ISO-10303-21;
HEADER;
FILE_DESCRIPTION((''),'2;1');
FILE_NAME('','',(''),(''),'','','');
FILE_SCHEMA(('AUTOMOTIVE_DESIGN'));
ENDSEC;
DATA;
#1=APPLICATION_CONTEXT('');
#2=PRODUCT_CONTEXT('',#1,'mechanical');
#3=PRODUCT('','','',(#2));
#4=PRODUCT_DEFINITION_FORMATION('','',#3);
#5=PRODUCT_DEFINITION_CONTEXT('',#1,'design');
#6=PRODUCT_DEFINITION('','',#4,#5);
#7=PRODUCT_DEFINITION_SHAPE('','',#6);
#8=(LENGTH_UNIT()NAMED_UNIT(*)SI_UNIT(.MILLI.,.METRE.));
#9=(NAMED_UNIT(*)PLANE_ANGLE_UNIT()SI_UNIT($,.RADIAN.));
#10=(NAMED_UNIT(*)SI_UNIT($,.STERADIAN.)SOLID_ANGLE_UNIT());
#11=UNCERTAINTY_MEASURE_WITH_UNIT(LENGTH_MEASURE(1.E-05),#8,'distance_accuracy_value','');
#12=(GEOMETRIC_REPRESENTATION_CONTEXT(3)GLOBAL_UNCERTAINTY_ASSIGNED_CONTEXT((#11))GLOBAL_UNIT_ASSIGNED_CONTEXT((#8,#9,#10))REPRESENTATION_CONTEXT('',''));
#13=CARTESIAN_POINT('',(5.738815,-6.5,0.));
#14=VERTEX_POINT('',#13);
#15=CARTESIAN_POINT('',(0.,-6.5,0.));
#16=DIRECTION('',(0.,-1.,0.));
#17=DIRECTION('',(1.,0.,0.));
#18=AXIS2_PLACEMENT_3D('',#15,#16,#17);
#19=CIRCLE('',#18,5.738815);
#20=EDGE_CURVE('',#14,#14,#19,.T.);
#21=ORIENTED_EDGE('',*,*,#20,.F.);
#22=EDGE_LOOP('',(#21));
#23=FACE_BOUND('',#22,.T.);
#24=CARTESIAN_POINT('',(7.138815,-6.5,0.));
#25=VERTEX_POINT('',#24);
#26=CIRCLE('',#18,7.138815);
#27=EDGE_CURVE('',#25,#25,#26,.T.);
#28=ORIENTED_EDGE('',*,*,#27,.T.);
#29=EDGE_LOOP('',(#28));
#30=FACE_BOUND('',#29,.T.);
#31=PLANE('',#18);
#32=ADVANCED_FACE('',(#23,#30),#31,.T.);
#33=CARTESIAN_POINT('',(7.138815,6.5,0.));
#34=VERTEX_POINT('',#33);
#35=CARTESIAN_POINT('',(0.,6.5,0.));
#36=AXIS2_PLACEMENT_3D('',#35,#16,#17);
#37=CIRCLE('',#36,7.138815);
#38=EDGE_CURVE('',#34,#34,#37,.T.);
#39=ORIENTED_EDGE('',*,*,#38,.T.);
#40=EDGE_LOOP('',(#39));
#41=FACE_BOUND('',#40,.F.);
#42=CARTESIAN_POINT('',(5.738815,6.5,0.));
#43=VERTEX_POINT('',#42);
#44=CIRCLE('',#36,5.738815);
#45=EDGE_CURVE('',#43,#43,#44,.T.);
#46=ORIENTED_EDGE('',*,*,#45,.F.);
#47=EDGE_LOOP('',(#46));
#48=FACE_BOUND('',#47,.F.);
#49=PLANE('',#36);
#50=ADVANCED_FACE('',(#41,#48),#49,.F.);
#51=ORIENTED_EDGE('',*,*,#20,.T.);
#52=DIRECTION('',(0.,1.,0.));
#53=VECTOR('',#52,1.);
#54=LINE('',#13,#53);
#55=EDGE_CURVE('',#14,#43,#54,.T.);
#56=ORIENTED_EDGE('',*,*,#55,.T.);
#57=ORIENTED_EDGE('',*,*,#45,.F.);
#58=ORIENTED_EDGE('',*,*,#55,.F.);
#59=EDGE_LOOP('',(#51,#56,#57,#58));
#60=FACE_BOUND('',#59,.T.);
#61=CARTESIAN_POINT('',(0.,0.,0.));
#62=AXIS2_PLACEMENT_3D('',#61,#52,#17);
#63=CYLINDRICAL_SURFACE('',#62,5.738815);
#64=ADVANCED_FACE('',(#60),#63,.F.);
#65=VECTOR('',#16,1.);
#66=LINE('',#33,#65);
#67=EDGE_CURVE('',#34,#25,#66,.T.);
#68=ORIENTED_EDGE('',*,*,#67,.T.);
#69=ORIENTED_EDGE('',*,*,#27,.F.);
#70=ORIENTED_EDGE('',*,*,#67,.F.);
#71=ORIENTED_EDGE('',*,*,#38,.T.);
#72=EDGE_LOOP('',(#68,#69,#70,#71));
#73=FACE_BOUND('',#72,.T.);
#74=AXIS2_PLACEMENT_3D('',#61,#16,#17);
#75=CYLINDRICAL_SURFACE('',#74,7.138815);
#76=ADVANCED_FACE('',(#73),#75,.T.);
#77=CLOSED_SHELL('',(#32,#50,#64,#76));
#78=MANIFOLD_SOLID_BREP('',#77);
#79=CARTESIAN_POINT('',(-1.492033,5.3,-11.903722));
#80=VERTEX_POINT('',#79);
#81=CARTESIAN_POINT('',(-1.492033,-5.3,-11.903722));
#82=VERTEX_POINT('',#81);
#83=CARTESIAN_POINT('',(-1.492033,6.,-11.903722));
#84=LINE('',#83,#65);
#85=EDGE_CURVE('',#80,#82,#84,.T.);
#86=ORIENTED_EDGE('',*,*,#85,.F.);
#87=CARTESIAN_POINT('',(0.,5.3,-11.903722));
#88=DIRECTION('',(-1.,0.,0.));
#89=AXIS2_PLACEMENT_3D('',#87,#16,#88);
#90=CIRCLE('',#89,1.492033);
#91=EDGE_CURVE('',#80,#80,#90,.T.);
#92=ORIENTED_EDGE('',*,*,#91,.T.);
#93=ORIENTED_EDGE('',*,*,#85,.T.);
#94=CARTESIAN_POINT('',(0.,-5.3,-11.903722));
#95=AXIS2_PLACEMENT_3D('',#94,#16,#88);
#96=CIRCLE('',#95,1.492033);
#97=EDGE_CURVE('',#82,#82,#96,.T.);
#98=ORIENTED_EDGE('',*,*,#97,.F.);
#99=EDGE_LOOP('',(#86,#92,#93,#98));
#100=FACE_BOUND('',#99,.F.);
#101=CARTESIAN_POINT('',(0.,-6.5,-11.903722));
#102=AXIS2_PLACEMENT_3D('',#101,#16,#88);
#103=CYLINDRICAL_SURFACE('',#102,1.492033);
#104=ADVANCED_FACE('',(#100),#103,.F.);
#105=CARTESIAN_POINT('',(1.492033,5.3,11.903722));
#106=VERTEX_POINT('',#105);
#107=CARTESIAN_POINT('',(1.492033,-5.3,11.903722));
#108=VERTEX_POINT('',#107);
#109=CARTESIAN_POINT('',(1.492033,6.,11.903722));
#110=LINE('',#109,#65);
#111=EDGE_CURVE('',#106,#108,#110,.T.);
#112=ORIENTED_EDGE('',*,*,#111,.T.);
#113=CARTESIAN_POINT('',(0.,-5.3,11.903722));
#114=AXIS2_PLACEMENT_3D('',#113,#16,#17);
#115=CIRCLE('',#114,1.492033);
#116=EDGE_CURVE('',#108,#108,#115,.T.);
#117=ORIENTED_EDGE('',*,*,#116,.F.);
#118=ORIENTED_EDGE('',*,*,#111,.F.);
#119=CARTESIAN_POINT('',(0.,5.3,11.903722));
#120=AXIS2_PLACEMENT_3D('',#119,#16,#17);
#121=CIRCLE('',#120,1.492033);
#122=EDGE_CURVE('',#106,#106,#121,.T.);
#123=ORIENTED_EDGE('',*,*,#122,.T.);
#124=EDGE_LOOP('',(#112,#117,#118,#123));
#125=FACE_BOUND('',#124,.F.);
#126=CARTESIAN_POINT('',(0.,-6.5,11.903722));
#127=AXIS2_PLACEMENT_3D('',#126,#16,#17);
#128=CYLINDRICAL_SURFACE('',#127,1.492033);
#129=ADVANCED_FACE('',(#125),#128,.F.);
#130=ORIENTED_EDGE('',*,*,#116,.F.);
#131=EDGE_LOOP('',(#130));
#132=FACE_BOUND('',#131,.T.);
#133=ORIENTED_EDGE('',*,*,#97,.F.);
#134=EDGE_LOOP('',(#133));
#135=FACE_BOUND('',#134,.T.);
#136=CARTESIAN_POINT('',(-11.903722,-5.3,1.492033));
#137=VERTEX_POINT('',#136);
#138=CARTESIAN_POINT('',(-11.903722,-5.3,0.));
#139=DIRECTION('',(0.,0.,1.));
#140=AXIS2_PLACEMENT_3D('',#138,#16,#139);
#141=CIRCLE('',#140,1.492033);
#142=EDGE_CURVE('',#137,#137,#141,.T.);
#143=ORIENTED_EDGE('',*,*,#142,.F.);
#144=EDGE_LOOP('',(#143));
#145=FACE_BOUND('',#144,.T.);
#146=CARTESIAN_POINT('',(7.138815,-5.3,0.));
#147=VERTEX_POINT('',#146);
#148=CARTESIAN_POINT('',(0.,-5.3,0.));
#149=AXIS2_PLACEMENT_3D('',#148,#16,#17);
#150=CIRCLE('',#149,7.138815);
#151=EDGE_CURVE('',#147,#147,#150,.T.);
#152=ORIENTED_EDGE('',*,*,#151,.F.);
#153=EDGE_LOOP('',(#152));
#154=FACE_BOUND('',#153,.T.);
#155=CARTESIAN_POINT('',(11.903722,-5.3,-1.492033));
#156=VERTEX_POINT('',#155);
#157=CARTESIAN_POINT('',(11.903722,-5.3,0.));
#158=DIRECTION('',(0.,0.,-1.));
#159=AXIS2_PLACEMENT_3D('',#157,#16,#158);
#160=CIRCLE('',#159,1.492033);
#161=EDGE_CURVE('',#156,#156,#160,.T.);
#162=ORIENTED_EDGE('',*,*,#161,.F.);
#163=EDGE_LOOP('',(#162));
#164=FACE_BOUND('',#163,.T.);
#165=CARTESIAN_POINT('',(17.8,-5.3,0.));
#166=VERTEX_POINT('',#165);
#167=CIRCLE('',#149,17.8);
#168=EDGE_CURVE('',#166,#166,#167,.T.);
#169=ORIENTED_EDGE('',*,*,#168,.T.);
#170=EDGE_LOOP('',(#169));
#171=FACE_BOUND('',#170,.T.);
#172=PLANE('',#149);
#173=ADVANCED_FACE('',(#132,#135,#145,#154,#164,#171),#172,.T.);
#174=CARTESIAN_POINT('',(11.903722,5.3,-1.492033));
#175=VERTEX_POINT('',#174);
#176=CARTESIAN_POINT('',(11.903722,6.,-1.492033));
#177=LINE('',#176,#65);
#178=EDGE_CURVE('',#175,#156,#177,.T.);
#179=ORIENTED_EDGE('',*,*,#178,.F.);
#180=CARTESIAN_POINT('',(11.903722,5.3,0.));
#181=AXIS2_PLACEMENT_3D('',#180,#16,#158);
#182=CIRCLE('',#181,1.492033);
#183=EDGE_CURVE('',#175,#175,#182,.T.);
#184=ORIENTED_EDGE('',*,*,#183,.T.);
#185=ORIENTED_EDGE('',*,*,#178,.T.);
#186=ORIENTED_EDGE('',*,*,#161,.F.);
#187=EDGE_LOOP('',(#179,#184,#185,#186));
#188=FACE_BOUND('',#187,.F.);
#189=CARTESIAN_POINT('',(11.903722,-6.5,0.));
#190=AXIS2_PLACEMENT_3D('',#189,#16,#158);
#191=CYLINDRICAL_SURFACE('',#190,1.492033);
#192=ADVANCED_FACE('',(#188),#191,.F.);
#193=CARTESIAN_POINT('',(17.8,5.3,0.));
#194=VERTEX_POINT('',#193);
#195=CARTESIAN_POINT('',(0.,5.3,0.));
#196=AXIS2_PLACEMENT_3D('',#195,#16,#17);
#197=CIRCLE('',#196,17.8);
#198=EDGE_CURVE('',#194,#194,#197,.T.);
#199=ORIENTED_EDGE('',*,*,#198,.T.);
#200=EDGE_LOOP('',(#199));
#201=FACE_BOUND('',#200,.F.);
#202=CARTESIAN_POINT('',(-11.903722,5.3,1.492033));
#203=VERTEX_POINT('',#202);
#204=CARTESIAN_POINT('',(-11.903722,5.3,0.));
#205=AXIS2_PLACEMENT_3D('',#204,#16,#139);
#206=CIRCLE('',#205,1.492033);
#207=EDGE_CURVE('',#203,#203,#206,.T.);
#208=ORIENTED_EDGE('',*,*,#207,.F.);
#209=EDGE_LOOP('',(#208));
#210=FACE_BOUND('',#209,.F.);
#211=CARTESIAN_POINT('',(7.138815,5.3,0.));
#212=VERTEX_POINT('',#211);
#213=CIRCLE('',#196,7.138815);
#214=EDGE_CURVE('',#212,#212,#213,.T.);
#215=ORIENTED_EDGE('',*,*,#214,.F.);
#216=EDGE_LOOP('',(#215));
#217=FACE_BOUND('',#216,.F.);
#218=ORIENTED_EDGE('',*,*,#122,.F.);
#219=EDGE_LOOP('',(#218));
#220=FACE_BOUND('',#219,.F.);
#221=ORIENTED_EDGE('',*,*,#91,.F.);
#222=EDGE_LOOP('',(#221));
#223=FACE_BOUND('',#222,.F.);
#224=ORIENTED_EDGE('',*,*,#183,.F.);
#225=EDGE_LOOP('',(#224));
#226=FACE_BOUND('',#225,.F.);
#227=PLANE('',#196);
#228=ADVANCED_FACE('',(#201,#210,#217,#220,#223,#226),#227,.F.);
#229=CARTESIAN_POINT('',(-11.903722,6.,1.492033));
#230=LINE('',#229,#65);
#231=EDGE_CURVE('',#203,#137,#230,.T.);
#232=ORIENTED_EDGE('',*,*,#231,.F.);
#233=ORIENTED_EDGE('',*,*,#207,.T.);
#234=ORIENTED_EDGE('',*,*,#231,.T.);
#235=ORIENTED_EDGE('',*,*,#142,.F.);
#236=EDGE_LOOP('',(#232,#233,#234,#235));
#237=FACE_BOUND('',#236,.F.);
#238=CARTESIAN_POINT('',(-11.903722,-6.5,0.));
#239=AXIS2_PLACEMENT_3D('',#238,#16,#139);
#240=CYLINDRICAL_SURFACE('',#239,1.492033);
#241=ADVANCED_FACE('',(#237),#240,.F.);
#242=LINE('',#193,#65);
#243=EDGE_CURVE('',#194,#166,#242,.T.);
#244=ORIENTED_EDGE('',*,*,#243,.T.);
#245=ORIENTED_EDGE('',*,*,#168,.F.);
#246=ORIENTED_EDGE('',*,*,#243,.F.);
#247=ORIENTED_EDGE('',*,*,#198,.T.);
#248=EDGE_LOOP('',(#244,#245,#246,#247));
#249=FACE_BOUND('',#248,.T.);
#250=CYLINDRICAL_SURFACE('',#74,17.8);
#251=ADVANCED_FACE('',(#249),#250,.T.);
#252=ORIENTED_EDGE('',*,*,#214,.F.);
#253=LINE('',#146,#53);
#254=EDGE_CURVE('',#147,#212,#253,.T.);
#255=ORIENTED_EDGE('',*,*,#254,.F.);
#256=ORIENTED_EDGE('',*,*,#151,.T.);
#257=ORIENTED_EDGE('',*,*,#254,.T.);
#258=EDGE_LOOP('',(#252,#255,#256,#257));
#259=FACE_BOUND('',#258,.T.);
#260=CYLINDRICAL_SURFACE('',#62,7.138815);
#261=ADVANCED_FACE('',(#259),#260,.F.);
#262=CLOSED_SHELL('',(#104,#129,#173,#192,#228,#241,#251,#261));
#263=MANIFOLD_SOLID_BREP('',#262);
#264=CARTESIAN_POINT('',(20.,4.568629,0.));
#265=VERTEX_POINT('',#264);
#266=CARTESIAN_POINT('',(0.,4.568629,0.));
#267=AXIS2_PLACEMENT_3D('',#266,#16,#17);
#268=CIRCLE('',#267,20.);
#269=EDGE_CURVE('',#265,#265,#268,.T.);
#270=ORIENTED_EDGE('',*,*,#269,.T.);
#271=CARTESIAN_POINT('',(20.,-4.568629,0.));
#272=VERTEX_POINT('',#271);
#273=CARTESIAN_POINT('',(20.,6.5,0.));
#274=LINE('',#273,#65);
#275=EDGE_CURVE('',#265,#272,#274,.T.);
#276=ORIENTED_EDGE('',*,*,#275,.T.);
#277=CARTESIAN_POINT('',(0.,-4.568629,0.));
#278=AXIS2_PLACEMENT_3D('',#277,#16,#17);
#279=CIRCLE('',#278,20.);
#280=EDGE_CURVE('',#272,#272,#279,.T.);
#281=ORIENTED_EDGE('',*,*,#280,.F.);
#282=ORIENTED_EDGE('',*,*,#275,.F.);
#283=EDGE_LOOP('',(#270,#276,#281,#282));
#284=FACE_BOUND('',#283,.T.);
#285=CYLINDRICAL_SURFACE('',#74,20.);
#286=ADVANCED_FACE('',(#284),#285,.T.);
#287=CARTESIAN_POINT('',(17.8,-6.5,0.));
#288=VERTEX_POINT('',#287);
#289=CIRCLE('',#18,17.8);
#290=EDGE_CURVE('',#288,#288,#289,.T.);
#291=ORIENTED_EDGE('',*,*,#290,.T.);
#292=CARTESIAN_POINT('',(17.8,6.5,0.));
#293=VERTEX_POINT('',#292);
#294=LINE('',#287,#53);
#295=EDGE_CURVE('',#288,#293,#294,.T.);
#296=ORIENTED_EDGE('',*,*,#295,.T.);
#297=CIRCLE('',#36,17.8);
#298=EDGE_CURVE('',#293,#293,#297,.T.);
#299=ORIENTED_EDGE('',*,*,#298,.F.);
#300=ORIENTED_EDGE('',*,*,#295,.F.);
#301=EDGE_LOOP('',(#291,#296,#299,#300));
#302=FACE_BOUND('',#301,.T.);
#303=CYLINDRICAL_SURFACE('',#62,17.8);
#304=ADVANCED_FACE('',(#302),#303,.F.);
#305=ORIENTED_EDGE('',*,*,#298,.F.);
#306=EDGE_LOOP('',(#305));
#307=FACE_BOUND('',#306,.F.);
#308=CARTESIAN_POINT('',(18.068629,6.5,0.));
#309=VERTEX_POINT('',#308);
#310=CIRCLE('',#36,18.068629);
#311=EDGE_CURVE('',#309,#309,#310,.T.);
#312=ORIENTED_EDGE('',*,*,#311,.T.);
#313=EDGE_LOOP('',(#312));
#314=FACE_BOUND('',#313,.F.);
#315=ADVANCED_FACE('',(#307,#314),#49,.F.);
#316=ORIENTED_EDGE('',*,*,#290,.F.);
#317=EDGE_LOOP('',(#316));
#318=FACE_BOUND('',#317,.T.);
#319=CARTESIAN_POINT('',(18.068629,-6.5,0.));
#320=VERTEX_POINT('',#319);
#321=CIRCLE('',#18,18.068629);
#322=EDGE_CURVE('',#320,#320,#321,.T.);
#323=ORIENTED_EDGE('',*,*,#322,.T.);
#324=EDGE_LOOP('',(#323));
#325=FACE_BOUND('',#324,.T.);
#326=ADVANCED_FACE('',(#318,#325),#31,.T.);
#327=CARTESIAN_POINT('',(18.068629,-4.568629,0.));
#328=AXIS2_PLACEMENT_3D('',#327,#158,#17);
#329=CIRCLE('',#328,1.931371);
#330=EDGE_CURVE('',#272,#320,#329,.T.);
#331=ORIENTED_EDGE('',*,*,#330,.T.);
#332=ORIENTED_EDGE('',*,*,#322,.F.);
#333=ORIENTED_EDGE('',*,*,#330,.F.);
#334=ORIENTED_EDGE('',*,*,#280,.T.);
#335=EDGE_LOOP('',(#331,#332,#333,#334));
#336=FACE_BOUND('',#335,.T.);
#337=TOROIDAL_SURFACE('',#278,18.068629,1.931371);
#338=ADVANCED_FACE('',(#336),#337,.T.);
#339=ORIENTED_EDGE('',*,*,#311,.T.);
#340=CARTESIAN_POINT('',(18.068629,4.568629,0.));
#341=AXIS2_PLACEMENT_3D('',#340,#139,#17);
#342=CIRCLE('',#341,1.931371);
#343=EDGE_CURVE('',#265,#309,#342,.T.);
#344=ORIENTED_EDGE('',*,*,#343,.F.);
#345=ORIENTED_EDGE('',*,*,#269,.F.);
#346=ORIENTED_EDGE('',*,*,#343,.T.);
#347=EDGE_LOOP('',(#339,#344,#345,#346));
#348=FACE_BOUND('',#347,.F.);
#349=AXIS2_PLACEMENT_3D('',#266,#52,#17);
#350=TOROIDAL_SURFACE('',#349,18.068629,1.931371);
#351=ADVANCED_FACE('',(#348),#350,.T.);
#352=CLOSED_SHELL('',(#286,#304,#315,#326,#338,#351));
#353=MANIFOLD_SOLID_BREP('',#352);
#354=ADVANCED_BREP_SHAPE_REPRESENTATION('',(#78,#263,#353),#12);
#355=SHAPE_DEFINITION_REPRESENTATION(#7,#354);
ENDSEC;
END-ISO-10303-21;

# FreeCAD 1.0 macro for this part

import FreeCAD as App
import Part
import Sketcher
from FreeCAD import Vector


def edges_at(feature, points):
    """Names of the edges that pass closest to the given points."""
    edges = feature.Shape.Edges
    near = lambda p: min(range(len(edges)), key=lambda i: edges[i].distToShape(Part.Vertex(*p))[0])
    return sorted({f"Edge{near(p) + 1}" for p in points})

doc = App.newDocument("Part")
params = doc.addObject("Spreadsheet::Sheet", "Params")
for row, (alias, value) in enumerate([
    ("pad1_length", "13 mm"),
    ("sketch2_diameter", "40 mm"),
    ("sketch2_diameter2", "35.599999 mm"),
    ("pad2_length", "13 mm"),
    ("fillet_radius", "1.931371 mm"),
    ("sketch3_diameter", "35.599999 mm"),
    ("pad3_length", "10.6 mm"),
    ("pocket1_length", "25 mm"),
], start=1):
    params.set(f"A{row}", alias)
    params.set(f"B{row}", "=" + value)
    params.setAlias(f"B{row}", alias)

body = doc.addObject("PartDesign::Body", "Body")

sketch1 = body.newObject("Sketcher::SketchObject", "Sketch")
sketch1.AttachmentSupport = (doc.getObject("XZ_Plane"), [""])
sketch1.MapMode = "FlatFace"
sketch1.addGeometry(Part.Circle(Vector(0, 0, 0), Vector(0, 0, 1), 7.138815), False)
sketch1.addGeometry(Part.Circle(Vector(0, 0, 0), Vector(0, 0, 1), 5.738815), False)
sketch1.addConstraint(Sketcher.Constraint("Coincident", 0, 3, -1, 1))
sketch1.addConstraint(Sketcher.Constraint("Coincident", 1, 3, -1, 1))
sketch1.addConstraint(Sketcher.Constraint("Diameter", 0, 14.27763))
sketch1.addConstraint(Sketcher.Constraint("Diameter", 1, 11.47763))
pad1 = body.newObject("PartDesign::Pad", "Pad")
pad1.Profile = sketch1
pad1.setExpression("Length", "Params.pad1_length")
pad1.Midplane = True
body2 = doc.addObject("PartDesign::Body", "Body001")

sketch2 = body2.newObject("Sketcher::SketchObject", "Sketch001")
sketch2.AttachmentSupport = (doc.getObject("XZ_Plane001"), [""])
sketch2.MapMode = "FlatFace"
sketch2.addGeometry(Part.Circle(Vector(0, 0, 0), Vector(0, 0, 1), 20), False)
sketch2.addGeometry(Part.Circle(Vector(0, 0, 0), Vector(0, 0, 1), 17.8), False)
sketch2.addConstraint(Sketcher.Constraint("Coincident", 0, 3, -1, 1))
sketch2.addConstraint(Sketcher.Constraint("Coincident", 1, 3, -1, 1))
sketch2.addConstraint(Sketcher.Constraint("Diameter", 0, 40.0))
sketch2.addConstraint(Sketcher.Constraint("Diameter", 1, 35.599999))
sketch2.setExpression("Constraints[2]", "Params.sketch2_diameter")
sketch2.setExpression("Constraints[3]", "Params.sketch2_diameter2")
pad2 = body2.newObject("PartDesign::Pad", "Pad001")
pad2.Profile = sketch2
pad2.setExpression("Length", "Params.pad2_length")
pad2.Midplane = True
doc.recompute()

fillet = body2.newObject("PartDesign::Fillet", "Fillet")
fillet.Base = (pad2, edges_at(pad2, [(-20, -6.5, 0), (-20, 6.5, 0)]))
fillet.setExpression("Radius", "Params.fillet_radius")
body3 = doc.addObject("PartDesign::Body", "Body002")

sketch3 = body3.newObject("Sketcher::SketchObject", "Sketch002")
sketch3.AttachmentSupport = (doc.getObject("XZ_Plane002"), [""])
sketch3.MapMode = "FlatFace"
sketch3.addGeometry(Part.Circle(Vector(0, 0, 0), Vector(0, 0, 1), 17.8), False)
sketch3.addGeometry(Part.Circle(Vector(0, 0, 0), Vector(0, 0, 1), 7.138815), False)
sketch3.addConstraint(Sketcher.Constraint("Coincident", 0, 3, -1, 1))
sketch3.addConstraint(Sketcher.Constraint("Coincident", 1, 3, -1, 1))
sketch3.addConstraint(Sketcher.Constraint("Diameter", 0, 35.599999))
sketch3.addConstraint(Sketcher.Constraint("Diameter", 1, 14.27763))
sketch3.setExpression("Constraints[2]", "Params.sketch3_diameter")
pad3 = body3.newObject("PartDesign::Pad", "Pad002")
pad3.Profile = sketch3
pad3.setExpression("Length", "Params.pad3_length")
pad3.Midplane = True

sketch4 = body3.newObject("Sketcher::SketchObject", "Sketch003")
sketch4.AttachmentSupport = (doc.getObject("XZ_Plane002"), [""])
sketch4.MapMode = "FlatFace"
sketch4.AttachmentOffset = App.Placement(Vector(0, 0, 6.5), App.Rotation())
sketch4.addGeometry(Part.Circle(Vector(0, 11.903722, 0), Vector(0, 0, 1), 1.492033), False)
sketch4.addConstraint(Sketcher.Constraint("PointOnObject", 0, 3, -2))
sketch4.addConstraint(Sketcher.Constraint("Diameter", 0, 2.984066))
sketch4.addConstraint(Sketcher.Constraint("DistanceY", -1, 1, 0, 3, 11.903722))
pocket1 = body3.newObject("PartDesign::Pocket", "Pocket")
pocket1.Profile = sketch4
pocket1.setExpression("Length", "Params.pocket1_length")
pocket1.Midplane = True
doc.recompute()

polarpattern = body3.newObject("PartDesign::PolarPattern", "PolarPattern")
polarpattern.Originals = [pocket1]
polarpattern.Axis = (doc.getObject("Y_Axis002"), [""])
polarpattern.Angle = 360
polarpattern.Occurrences = 4
body3.Tip = polarpattern

doc.recompute()
